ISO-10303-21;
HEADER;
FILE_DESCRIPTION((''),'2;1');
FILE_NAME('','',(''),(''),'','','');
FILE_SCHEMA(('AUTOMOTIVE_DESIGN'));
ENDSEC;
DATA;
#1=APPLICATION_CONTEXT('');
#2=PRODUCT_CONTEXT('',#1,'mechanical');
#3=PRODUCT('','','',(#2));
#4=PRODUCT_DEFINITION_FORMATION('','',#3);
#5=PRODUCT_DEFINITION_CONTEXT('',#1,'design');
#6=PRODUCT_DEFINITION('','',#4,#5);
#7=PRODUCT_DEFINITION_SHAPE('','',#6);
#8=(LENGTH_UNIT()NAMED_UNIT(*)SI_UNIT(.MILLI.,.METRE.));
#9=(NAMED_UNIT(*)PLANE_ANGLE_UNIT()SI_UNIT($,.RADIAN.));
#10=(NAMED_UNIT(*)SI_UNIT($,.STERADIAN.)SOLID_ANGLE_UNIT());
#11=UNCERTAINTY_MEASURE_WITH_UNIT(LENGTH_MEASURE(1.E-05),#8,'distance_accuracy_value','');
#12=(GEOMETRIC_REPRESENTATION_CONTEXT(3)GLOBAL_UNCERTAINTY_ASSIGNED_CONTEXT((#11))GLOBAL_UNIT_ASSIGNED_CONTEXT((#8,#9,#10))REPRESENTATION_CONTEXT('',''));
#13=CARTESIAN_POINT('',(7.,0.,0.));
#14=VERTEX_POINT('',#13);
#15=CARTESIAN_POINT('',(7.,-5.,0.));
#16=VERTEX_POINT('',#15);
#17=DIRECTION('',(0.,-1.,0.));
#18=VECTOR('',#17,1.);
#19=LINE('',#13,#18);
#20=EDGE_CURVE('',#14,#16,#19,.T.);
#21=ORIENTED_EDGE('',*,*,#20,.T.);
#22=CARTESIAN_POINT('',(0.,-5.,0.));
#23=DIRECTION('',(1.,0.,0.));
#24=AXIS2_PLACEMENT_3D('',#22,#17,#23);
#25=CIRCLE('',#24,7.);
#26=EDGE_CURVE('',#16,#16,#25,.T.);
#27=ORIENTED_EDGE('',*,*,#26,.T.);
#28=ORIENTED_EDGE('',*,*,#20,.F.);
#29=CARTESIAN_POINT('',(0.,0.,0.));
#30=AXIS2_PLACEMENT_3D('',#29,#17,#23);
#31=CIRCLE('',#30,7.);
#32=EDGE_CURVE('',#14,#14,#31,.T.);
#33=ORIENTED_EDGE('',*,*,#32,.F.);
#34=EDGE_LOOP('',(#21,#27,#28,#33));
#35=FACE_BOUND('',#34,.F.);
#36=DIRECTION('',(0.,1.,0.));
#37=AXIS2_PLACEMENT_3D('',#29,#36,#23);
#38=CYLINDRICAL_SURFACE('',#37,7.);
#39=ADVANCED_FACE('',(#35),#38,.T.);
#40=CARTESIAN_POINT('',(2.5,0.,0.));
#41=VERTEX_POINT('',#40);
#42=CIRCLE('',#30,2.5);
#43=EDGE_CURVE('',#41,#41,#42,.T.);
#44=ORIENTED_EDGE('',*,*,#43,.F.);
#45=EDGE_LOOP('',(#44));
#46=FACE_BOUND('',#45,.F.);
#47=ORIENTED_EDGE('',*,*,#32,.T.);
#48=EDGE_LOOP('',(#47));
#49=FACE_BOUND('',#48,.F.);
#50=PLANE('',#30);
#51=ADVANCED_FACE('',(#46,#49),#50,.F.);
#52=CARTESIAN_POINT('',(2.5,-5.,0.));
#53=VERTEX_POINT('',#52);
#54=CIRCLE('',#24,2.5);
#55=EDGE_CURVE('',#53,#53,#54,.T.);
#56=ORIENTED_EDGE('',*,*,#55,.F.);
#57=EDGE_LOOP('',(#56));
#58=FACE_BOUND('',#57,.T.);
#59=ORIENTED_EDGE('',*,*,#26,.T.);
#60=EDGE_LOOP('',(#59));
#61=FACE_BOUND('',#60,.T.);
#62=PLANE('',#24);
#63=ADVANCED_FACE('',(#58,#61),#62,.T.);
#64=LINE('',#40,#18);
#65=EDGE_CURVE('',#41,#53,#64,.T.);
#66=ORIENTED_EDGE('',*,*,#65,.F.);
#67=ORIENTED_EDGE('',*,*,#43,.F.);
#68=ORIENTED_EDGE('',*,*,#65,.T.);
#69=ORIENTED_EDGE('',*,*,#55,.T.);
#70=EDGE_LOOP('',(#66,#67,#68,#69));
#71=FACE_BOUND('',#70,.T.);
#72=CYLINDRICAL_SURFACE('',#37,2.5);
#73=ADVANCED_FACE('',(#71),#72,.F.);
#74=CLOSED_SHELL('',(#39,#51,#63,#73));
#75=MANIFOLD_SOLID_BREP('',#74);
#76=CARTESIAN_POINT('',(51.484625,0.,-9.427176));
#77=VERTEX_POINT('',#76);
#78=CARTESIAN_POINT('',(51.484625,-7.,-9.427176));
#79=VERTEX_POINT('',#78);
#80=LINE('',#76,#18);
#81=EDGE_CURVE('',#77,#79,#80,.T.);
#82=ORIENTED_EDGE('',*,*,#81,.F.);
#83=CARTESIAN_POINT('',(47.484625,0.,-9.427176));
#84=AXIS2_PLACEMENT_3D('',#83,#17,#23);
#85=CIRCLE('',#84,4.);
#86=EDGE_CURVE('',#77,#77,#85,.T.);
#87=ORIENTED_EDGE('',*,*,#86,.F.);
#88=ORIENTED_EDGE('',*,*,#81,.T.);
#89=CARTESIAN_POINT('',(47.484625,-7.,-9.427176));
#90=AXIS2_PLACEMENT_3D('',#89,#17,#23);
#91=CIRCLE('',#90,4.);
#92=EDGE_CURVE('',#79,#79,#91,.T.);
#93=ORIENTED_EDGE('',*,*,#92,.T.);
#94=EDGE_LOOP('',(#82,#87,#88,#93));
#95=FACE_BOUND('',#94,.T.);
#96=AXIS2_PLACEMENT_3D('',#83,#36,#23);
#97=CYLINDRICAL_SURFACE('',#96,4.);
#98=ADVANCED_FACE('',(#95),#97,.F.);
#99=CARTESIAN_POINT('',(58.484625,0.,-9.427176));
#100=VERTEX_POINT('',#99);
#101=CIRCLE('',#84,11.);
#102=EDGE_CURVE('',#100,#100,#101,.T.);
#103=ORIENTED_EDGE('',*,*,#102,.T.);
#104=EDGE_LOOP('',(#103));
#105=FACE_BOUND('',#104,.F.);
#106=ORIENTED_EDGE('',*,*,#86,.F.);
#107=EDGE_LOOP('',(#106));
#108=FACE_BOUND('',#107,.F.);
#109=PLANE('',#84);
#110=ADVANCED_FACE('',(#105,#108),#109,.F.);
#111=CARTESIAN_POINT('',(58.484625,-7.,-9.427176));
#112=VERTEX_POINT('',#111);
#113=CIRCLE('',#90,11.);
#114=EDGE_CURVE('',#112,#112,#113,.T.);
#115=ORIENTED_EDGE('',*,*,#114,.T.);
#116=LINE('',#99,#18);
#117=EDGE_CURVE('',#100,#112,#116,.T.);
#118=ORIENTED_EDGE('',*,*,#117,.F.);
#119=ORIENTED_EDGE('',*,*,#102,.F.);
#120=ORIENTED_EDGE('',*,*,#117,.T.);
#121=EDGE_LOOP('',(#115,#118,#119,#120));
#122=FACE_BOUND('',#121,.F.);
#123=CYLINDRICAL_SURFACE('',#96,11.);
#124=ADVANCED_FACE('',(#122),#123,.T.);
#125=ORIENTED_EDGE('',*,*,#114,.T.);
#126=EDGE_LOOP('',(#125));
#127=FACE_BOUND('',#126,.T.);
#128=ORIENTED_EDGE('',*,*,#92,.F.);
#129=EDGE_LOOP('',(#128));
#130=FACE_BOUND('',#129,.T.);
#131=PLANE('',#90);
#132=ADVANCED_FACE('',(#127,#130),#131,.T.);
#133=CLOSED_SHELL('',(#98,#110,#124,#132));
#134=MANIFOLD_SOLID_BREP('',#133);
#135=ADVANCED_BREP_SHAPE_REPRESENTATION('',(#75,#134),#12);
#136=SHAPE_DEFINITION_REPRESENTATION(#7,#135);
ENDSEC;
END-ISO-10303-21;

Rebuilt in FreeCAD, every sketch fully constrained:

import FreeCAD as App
import Part
import Sketcher

doc = App.newDocument("Part")
body = doc.addObject("PartDesign::Body", "Body")

sketch1 = body.newObject("Sketcher::SketchObject", "Sketch")
sketch1.AttachmentSupport = (doc.getObject("XZ_Plane"), [""])
sketch1.MapMode = "FlatFace"
sketch1.addGeometry([
    Part.Circle(App.Vector(0, 0, 0), App.Vector(0, 0, 1), 7),
    Part.Circle(App.Vector(0, 0, 0), App.Vector(0, 0, 1), 2.5),
], False)
sketch1.addConstraint([
    Sketcher.Constraint("Coincident", 0, 3, -1, 1),
    Sketcher.Constraint("Coincident", 1, 3, -1, 1),
    Sketcher.Constraint("Diameter", 0, 14.0),
    Sketcher.Constraint("Diameter", 1, 5.0),
])
pad1 = body.newObject("PartDesign::Pad", "Pad")
pad1.Profile = sketch1
pad1.Length = 5
body2 = doc.addObject("PartDesign::Body", "Body001")

sketch2 = body2.newObject("Sketcher::SketchObject", "Sketch001")
sketch2.AttachmentSupport = (doc.getObject("XZ_Plane001"), [""])
sketch2.MapMode = "FlatFace"
sketch2.addGeometry([
    Part.Circle(App.Vector(47.5, -9.4, 0), App.Vector(0, 0, 1), 11),
    Part.Circle(App.Vector(47.5, -9.4, 0), App.Vector(0, 0, 1), 4),
], False)
sketch2.addConstraint([
    Sketcher.Constraint("Coincident", 1, 3, 0, 3),
    Sketcher.Constraint("Diameter", 0, 22.0),
    Sketcher.Constraint("Diameter", 1, 8.0),
    Sketcher.Constraint("DistanceX", -1, 1, 0, 3, 47.484625),
    Sketcher.Constraint("DistanceY", 0, 3, -1, 1, 9.427176),
])
pad2 = body2.newObject("PartDesign::Pad", "Pad001")
pad2.Profile = sketch2
pad2.Length = 7

doc.recompute()
